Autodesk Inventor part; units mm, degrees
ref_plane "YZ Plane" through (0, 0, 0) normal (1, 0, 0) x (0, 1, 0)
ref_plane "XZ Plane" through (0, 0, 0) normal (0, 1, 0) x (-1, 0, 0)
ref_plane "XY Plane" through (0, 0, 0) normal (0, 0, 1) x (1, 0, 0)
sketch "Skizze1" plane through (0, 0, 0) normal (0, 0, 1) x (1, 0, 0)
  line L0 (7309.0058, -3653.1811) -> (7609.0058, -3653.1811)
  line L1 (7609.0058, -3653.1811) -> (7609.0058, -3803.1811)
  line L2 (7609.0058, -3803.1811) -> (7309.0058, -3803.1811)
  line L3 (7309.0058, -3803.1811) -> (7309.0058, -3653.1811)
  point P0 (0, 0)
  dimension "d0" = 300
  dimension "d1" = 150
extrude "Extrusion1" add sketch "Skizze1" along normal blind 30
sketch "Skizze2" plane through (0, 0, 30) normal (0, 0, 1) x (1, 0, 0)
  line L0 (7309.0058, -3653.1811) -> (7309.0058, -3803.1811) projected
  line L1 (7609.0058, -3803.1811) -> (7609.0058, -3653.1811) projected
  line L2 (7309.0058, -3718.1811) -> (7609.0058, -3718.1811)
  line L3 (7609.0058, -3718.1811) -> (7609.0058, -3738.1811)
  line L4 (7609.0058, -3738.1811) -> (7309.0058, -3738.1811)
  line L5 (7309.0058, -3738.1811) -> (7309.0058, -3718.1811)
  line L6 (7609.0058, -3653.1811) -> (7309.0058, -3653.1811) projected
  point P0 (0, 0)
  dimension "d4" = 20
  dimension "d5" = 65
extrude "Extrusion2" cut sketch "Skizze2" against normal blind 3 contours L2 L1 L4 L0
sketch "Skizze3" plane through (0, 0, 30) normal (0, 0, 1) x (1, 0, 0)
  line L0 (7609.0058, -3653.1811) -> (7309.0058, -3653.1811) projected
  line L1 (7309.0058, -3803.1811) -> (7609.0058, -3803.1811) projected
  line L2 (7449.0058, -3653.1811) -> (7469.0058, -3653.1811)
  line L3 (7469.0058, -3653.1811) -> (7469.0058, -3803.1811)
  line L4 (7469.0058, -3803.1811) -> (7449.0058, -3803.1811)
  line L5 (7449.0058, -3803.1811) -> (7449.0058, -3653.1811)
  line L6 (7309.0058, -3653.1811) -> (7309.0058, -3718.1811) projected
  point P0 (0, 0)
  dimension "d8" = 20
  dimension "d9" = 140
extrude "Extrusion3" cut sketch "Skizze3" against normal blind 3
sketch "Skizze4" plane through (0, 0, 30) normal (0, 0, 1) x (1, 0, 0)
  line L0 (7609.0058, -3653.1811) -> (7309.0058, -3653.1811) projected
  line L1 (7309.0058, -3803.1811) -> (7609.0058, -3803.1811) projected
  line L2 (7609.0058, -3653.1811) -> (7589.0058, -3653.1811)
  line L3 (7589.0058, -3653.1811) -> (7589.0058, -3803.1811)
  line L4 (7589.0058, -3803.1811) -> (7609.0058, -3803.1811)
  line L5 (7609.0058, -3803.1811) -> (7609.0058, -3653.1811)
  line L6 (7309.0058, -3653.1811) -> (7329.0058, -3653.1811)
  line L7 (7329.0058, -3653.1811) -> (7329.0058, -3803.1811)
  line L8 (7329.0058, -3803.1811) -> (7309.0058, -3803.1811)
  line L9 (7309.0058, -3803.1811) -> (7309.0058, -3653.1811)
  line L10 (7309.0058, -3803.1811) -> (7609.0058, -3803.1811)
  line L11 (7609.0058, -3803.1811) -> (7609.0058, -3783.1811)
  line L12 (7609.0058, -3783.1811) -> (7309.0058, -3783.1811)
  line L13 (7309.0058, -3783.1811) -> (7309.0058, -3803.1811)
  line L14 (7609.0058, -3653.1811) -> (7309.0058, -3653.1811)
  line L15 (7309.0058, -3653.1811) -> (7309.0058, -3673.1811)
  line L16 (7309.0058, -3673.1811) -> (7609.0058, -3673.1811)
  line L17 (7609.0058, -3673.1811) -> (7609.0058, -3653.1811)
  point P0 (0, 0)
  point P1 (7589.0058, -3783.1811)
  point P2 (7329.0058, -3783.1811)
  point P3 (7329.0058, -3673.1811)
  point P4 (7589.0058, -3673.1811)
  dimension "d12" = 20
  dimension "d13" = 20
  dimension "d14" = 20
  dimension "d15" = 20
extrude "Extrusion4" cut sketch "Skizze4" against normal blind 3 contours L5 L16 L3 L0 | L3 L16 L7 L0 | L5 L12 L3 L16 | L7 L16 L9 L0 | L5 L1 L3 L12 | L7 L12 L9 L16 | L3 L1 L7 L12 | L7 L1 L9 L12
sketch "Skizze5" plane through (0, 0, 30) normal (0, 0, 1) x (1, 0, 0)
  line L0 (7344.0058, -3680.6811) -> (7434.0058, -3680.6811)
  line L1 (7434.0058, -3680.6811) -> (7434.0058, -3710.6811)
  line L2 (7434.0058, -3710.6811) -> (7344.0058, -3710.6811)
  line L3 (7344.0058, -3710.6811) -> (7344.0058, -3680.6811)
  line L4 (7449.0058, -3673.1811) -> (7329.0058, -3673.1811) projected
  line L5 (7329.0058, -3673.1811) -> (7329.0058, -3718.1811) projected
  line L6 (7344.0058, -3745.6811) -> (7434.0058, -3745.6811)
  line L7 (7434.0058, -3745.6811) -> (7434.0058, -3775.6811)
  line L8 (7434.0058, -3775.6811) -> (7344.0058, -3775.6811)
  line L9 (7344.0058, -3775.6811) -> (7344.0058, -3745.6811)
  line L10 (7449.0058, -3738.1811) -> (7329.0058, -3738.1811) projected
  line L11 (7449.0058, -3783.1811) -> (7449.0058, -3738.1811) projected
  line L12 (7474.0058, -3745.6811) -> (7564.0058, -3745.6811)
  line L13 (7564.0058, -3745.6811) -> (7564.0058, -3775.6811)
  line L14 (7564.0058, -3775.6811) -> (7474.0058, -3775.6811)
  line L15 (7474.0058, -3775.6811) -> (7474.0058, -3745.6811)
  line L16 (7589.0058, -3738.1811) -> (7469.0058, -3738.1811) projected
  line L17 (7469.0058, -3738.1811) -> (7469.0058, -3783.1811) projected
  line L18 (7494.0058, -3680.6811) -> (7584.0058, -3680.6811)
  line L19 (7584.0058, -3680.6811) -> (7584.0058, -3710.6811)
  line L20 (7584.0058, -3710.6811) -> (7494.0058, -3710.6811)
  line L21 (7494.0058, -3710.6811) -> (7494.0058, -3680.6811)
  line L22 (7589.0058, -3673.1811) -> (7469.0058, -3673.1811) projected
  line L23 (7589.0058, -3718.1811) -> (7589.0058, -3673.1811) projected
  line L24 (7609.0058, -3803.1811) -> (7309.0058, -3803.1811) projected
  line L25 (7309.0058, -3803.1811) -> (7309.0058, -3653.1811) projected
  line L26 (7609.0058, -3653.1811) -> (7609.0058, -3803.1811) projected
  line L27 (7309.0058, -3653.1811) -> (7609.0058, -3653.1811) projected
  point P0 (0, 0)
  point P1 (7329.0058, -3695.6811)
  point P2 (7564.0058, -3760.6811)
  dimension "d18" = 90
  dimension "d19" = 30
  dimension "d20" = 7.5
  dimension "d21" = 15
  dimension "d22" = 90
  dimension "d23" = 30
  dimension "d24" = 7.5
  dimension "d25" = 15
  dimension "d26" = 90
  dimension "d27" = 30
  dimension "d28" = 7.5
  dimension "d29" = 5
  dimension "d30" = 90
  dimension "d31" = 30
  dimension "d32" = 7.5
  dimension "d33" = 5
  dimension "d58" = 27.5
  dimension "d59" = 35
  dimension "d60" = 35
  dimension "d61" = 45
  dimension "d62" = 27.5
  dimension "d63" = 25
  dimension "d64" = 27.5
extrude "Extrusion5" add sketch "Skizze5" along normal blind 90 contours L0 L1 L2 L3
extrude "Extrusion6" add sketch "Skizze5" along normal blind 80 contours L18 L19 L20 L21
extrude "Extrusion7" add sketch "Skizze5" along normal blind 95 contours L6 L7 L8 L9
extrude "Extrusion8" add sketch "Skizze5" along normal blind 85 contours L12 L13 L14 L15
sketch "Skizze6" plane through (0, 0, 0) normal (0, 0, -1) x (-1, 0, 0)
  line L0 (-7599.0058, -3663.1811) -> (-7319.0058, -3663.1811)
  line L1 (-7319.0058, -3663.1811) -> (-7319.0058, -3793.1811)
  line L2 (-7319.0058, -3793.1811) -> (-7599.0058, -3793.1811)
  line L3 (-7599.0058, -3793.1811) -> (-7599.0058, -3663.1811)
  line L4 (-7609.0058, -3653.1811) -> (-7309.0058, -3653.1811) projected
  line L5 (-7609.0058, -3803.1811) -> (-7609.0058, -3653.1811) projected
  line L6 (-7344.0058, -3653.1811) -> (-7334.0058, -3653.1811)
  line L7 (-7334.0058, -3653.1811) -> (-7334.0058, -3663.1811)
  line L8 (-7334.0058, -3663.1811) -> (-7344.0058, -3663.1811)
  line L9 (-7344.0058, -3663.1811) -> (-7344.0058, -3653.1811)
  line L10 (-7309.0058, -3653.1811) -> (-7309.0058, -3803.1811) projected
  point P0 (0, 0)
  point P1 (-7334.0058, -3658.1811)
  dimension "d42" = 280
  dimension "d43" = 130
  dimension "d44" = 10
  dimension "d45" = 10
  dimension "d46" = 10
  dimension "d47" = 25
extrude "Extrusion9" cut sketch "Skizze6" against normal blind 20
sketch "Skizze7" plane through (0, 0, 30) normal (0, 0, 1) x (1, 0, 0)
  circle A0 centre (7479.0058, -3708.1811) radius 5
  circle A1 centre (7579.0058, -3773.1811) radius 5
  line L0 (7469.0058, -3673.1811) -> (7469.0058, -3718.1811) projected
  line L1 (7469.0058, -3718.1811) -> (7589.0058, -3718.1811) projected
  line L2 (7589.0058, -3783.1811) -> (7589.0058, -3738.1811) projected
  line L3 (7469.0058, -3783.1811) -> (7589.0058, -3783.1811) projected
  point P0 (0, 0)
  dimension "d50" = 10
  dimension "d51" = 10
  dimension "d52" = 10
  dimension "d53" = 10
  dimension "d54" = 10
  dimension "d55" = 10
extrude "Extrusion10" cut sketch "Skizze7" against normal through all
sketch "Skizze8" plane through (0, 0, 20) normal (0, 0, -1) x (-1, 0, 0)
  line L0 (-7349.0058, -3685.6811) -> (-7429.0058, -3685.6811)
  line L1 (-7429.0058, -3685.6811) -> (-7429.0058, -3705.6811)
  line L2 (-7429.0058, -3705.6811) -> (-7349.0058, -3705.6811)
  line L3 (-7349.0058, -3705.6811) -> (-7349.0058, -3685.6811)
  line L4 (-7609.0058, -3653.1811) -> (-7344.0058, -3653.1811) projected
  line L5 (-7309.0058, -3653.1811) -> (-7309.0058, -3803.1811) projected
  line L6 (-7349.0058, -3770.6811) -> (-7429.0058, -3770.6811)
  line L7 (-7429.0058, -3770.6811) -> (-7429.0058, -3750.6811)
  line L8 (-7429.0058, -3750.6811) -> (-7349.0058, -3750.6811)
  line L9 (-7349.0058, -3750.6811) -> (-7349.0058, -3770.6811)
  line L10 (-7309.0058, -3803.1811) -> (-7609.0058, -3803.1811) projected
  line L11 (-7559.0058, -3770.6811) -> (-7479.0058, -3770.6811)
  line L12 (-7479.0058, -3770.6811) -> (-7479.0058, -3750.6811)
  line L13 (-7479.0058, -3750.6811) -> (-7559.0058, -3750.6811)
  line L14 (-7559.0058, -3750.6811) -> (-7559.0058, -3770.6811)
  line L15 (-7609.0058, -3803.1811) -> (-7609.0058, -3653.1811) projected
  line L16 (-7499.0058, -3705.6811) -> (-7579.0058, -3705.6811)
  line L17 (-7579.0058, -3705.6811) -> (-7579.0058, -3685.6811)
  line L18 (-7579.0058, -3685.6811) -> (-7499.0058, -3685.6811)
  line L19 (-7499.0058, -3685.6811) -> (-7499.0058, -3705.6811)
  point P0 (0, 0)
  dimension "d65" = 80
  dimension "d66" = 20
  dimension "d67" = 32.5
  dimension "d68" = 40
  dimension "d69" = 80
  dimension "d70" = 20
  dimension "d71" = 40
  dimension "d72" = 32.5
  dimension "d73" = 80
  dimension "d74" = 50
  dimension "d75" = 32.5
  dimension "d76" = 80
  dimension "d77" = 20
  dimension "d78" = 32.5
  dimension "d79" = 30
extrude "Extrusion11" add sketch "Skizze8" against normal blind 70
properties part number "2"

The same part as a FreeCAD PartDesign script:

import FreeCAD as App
import Part
import Sketcher
Q = App.Units.Quantity

doc = App.newDocument("Part")
params = doc.addObject("Spreadsheet::Sheet", "Params")
for row, (alias, value) in enumerate([
    ("sketch1_width", "300 mm"),
    ("sketch1_height", "150 mm"),
    ("pad1_length", "30 mm"),
    ("sketch2_height", "20 mm"),
    ("sketch2_width", "300 mm"),
    ("pocket1_length", "3 mm"),
    ("sketch3_width", "20 mm"),
    ("sketch3_height", "150 mm"),
    ("pocket2_length", "3 mm"),
    ("sketch4_width", "300 mm"),
    ("sketch4_height", "150 mm"),
    ("pocket3_length", "3 mm"),
    ("sketch5_width", "90 mm"),
    ("sketch5_height", "30 mm"),
    ("pad2_length", "90 mm"),
    ("sketch6_width", "90 mm"),
    ("sketch6_height", "30 mm"),
    ("pad3_length", "80 mm"),
    ("sketch7_width", "90 mm"),
    ("sketch7_height", "30 mm"),
    ("pad4_length", "95 mm"),
    ("sketch8_width", "90 mm"),
    ("sketch8_height", "30 mm"),
    ("pad5_length", "85 mm"),
    ("sketch9_width", "280 mm"),
    ("sketch9_width2", "10 mm"),
    ("sketch9_height", "130 mm"),
    ("pocket4_length", "20 mm"),
    ("sketch10_diameter", "10 mm"),
    ("sketch11_width", "80 mm"),
    ("sketch11_height", "20 mm"),
    ("pad6_length", "70 mm"),
], start=1):
    params.set(f"A{row}", alias)
    params.set(f"B{row}", "=" + value)
    params.setAlias(f"B{row}", alias)

body = doc.addObject("PartDesign::Body", "Body")

sketch1 = body.newObject("Sketcher::SketchObject", "Sketch")
sketch1.AttachmentSupport = (doc.getObject("XY_Plane"), [""])
sketch1.MapMode = "FlatFace"
sketch1.addGeometry([
    Part.LineSegment(App.Vector(7609.0058, -3653.1811, 0), App.Vector(7309.0058, -3653.1811, 0)),
    Part.LineSegment(App.Vector(7309.0058, -3653.1811, 0), App.Vector(7309.0058, -3803.1811, 0)),
    Part.LineSegment(App.Vector(7309.0058, -3803.1811, 0), App.Vector(7609.0058, -3803.1811, 0)),
    Part.LineSegment(App.Vector(7609.0058, -3803.1811, 0), App.Vector(7609.0058, -3653.1811, 0)),
], False)
sketch1.addConstraint([
    Sketcher.Constraint("Coincident", 0, 2, 1, 1),
    Sketcher.Constraint("Coincident", 1, 2, 2, 1),
    Sketcher.Constraint("Coincident", 2, 2, 3, 1),
    Sketcher.Constraint("Coincident", 3, 2, 0, 1),
    Sketcher.Constraint("Horizontal", 0),
    Sketcher.Constraint("Vertical", 1),
    Sketcher.Constraint("Horizontal", 2),
    Sketcher.Constraint("Vertical", 3),
    Sketcher.Constraint("DistanceX", 0, 2, 0, 1, Q("300 mm")),
    Sketcher.Constraint("DistanceY", 1, 2, 1, 1, Q("150 mm")),
    Sketcher.Constraint("DistanceY", 0, 2, -1, 1, Q("3653.181 mm")),
    Sketcher.Constraint("DistanceX", -1, 1, 0, 2, Q("7309.0058 mm")),
])
sketch1.setExpression("Constraints[8]", "Params.sketch1_width")
sketch1.setExpression("Constraints[9]", "Params.sketch1_height")
pad1 = body.newObject("PartDesign::Pad", "Pad")
pad1.Profile = sketch1
pad1.setExpression("Length", "Params.pad1_length")

sketch2 = body.newObject("Sketcher::SketchObject", "Sketch001")
sketch2.AttachmentSupport = (doc.getObject("XY_Plane"), [""])
sketch2.MapMode = "FlatFace"
sketch2.AttachmentOffset = App.Placement(App.Vector(0, 0, 30), App.Rotation())
sketch2.addGeometry([
    Part.LineSegment(App.Vector(7609.0058, -3718.1811, 0), App.Vector(7309.0058, -3718.1811, 0)),
    Part.LineSegment(App.Vector(7309.0058, -3718.1811, 0), App.Vector(7309.0058, -3738.1811, 0)),
    Part.LineSegment(App.Vector(7309.0058, -3738.1811, 0), App.Vector(7609.0058, -3738.1811, 0)),
    Part.LineSegment(App.Vector(7609.0058, -3738.1811, 0), App.Vector(7609.0058, -3718.1811, 0)),
], False)
sketch2.addConstraint([
    Sketcher.Constraint("Coincident", 0, 2, 1, 1),
    Sketcher.Constraint("Coincident", 1, 2, 2, 1),
    Sketcher.Constraint("Coincident", 2, 2, 3, 1),
    Sketcher.Constraint("Coincident", 3, 2, 0, 1),
    Sketcher.Constraint("Horizontal", 0),
    Sketcher.Constraint("Vertical", 1),
    Sketcher.Constraint("Horizontal", 2),
    Sketcher.Constraint("Vertical", 3),
    Sketcher.Constraint("DistanceY", 1, 2, 1, 1, Q("20 mm")),
    Sketcher.Constraint("DistanceX", 0, 2, 0, 1, Q("300 mm")),
    Sketcher.Constraint("DistanceY", 0, 2, -1, 1, Q("3718.181 mm")),
    Sketcher.Constraint("DistanceX", -1, 1, 0, 2, Q("7309.0058 mm")),
])
sketch2.setExpression("Constraints[8]", "Params.sketch2_height")
sketch2.setExpression("Constraints[9]", "Params.sketch2_width")
pocket1 = body.newObject("PartDesign::Pocket", "Pocket")
pocket1.Profile = sketch2
pocket1.setExpression("Length", "Params.pocket1_length")

sketch3 = body.newObject("Sketcher::SketchObject", "Sketch002")
sketch3.AttachmentSupport = (doc.getObject("XY_Plane"), [""])
sketch3.MapMode = "FlatFace"
sketch3.AttachmentOffset = App.Placement(App.Vector(0, 0, 30), App.Rotation())
sketch3.addGeometry([
    Part.LineSegment(App.Vector(7469.0058, -3803.1811, 0), App.Vector(7469.0058, -3653.1811, 0)),
    Part.LineSegment(App.Vector(7469.0058, -3653.1811, 0), App.Vector(7449.0058, -3653.1811, 0)),
    Part.LineSegment(App.Vector(7449.0058, -3653.1811, 0), App.Vector(7449.0058, -3803.1811, 0)),
    Part.LineSegment(App.Vector(7449.0058, -3803.1811, 0), App.Vector(7469.0058, -3803.1811, 0)),
], False)
sketch3.addConstraint([
    Sketcher.Constraint("Coincident", 0, 2, 1, 1),
    Sketcher.Constraint("Coincident", 1, 2, 2, 1),
    Sketcher.Constraint("Coincident", 2, 2, 3, 1),
    Sketcher.Constraint("Coincident", 3, 2, 0, 1),
    Sketcher.Constraint("Vertical", 0),
    Sketcher.Constraint("Horizontal", 1),
    Sketcher.Constraint("Vertical", 2),
    Sketcher.Constraint("Horizontal", 3),
    Sketcher.Constraint("DistanceX", 1, 2, 1, 1, Q("20 mm")),
    Sketcher.Constraint("DistanceY", 0, 1, 0, 2, Q("150 mm")),
    Sketcher.Constraint("DistanceY", 0, 2, -1, 1, Q("3653.181 mm")),
    Sketcher.Constraint("DistanceX", -1, 1, 0, 2, Q("7469.0058 mm")),
])
sketch3.setExpression("Constraints[8]", "Params.sketch3_width")
sketch3.setExpression("Constraints[9]", "Params.sketch3_height")
pocket2 = body.newObject("PartDesign::Pocket", "Pocket001")
pocket2.Profile = sketch3
pocket2.setExpression("Length", "Params.pocket2_length")

sketch4 = body.newObject("Sketcher::SketchObject", "Sketch003")
sketch4.AttachmentSupport = (doc.getObject("XY_Plane"), [""])
sketch4.MapMode = "FlatFace"
sketch4.AttachmentOffset = App.Placement(App.Vector(0, 0, 30), App.Rotation())
sketch4.addGeometry([
    Part.LineSegment(App.Vector(7609.0058, -3653.1811, 0), App.Vector(7309.0058, -3653.1811, 0)),
    Part.LineSegment(App.Vector(7309.0058, -3653.1811, 0), App.Vector(7309.0058, -3803.1811, 0)),
    Part.LineSegment(App.Vector(7309.0058, -3803.1811, 0), App.Vector(7609.0058, -3803.1811, 0)),
    Part.LineSegment(App.Vector(7609.0058, -3803.1811, 0), App.Vector(7609.0058, -3653.1811, 0)),
    Part.LineSegment(App.Vector(7589.0058, -3673.1811, 0), App.Vector(7589.0058, -3783.1811, 0)),
    Part.LineSegment(App.Vector(7589.0058, -3783.1811, 0), App.Vector(7329.0058, -3783.1811, 0)),
    Part.LineSegment(App.Vector(7329.0058, -3783.1811, 0), App.Vector(7329.0058, -3673.1811, 0)),
    Part.LineSegment(App.Vector(7329.0058, -3673.1811, 0), App.Vector(7589.0058, -3673.1811, 0)),
], False)
sketch4.addConstraint([
    Sketcher.Constraint("Coincident", 0, 2, 1, 1),
    Sketcher.Constraint("Coincident", 1, 2, 2, 1),
    Sketcher.Constraint("Coincident", 2, 2, 3, 1),
    Sketcher.Constraint("Coincident", 3, 2, 0, 1),
    Sketcher.Constraint("Coincident", 4, 2, 5, 1),
    Sketcher.Constraint("Coincident", 5, 2, 6, 1),
    Sketcher.Constraint("Coincident", 6, 2, 7, 1),
    Sketcher.Constraint("Coincident", 7, 2, 4, 1),
    Sketcher.Constraint("Horizontal", 0),
    Sketcher.Constraint("Vertical", 1),
    Sketcher.Constraint("Horizontal", 2),
    Sketcher.Constraint("Vertical", 3),
    Sketcher.Constraint("Vertical", 4),
    Sketcher.Constraint("Horizontal", 5),
    Sketcher.Constraint("Vertical", 6),
    Sketcher.Constraint("Horizontal", 7),
    Sketcher.Constraint("DistanceX", 4, 2, 2, 2, Q("20 mm")),
    Sketcher.Constraint("DistanceY", 2, 2, 4, 2, Q("20 mm")),
    Sketcher.Constraint("DistanceX", 1, 2, 5, 2, Q("20 mm")),
    Sketcher.Constraint("DistanceY", 6, 2, 0, 2, Q("20 mm")),
    Sketcher.Constraint("DistanceX", 0, 2, 0, 1, Q("300 mm")),
    Sketcher.Constraint("DistanceY", 1, 2, 1, 1, Q("150 mm")),
    Sketcher.Constraint("DistanceY", 0, 2, -1, 1, Q("3653.181 mm")),
    Sketcher.Constraint("DistanceX", -1, 1, 0, 2, Q("7309.0058 mm")),
])
sketch4.setExpression("Constraints[20]", "Params.sketch4_width")
sketch4.setExpression("Constraints[21]", "Params.sketch4_height")
pocket3 = body.newObject("PartDesign::Pocket", "Pocket002")
pocket3.Profile = sketch4
pocket3.setExpression("Length", "Params.pocket3_length")

sketch5 = body.newObject("Sketcher::SketchObject", "Sketch004")
sketch5.AttachmentSupport = (doc.getObject("XY_Plane"), [""])
sketch5.MapMode = "FlatFace"
sketch5.AttachmentOffset = App.Placement(App.Vector(0, 0, 30), App.Rotation())
sketch5.addGeometry([
    Part.LineSegment(App.Vector(7434.0058, -3680.6811, 0), App.Vector(7344.0058, -3680.6811, 0)),
    Part.LineSegment(App.Vector(7344.0058, -3680.6811, 0), App.Vector(7344.0058, -3710.6811, 0)),
    Part.LineSegment(App.Vector(7344.0058, -3710.6811, 0), App.Vector(7434.0058, -3710.6811, 0)),
    Part.LineSegment(App.Vector(7434.0058, -3710.6811, 0), App.Vector(7434.0058, -3680.6811, 0)),
], False)
sketch5.addConstraint([
    Sketcher.Constraint("Coincident", 0, 2, 1, 1),
    Sketcher.Constraint("Coincident", 1, 2, 2, 1),
    Sketcher.Constraint("Coincident", 2, 2, 3, 1),
    Sketcher.Constraint("Coincident", 3, 2, 0, 1),
    Sketcher.Constraint("Horizontal", 0),
    Sketcher.Constraint("Vertical", 1),
    Sketcher.Constraint("Horizontal", 2),
    Sketcher.Constraint("Vertical", 3),
    Sketcher.Constraint("DistanceX", 0, 2, 0, 1, Q("90 mm")),
    Sketcher.Constraint("DistanceY", 1, 2, 1, 1, Q("30 mm")),
    Sketcher.Constraint("DistanceY", 0, 2, -1, 1, Q("3680.681 mm")),
    Sketcher.Constraint("DistanceX", -1, 1, 0, 2, Q("7344.0058 mm")),
])
sketch5.setExpression("Constraints[8]", "Params.sketch5_width")
sketch5.setExpression("Constraints[9]", "Params.sketch5_height")
pad2 = body.newObject("PartDesign::Pad", "Pad001")
pad2.Profile = sketch5
pad2.setExpression("Length", "Params.pad2_length")

sketch6 = body.newObject("Sketcher::SketchObject", "Sketch005")
sketch6.AttachmentSupport = (doc.getObject("XY_Plane"), [""])
sketch6.MapMode = "FlatFace"
sketch6.AttachmentOffset = App.Placement(App.Vector(0, 0, 30), App.Rotation())
sketch6.addGeometry([
    Part.LineSegment(App.Vector(7584.0058, -3680.6811, 0), App.Vector(7494.0058, -3680.6811, 0)),
    Part.LineSegment(App.Vector(7494.0058, -3680.6811, 0), App.Vector(7494.0058, -3710.6811, 0)),
    Part.LineSegment(App.Vector(7494.0058, -3710.6811, 0), App.Vector(7584.0058, -3710.6811, 0)),
    Part.LineSegment(App.Vector(7584.0058, -3710.6811, 0), App.Vector(7584.0058, -3680.6811, 0)),
], False)
sketch6.addConstraint([
    Sketcher.Constraint("Coincident", 0, 2, 1, 1),
    Sketcher.Constraint("Coincident", 1, 2, 2, 1),
    Sketcher.Constraint("Coincident", 2, 2, 3, 1),
    Sketcher.Constraint("Coincident", 3, 2, 0, 1),
    Sketcher.Constraint("Horizontal", 0),
    Sketcher.Constraint("Vertical", 1),
    Sketcher.Constraint("Horizontal", 2),
    Sketcher.Constraint("Vertical", 3),
    Sketcher.Constraint("DistanceX", 0, 2, 0, 1, Q("90 mm")),
    Sketcher.Constraint("DistanceY", 1, 2, 1, 1, Q("30 mm")),
    Sketcher.Constraint("DistanceY", 0, 2, -1, 1, Q("3680.681 mm")),
    Sketcher.Constraint("DistanceX", -1, 1, 0, 2, Q("7494.0058 mm")),
])
sketch6.setExpression("Constraints[8]", "Params.sketch6_width")
sketch6.setExpression("Constraints[9]", "Params.sketch6_height")
pad3 = body.newObject("PartDesign::Pad", "Pad002")
pad3.Profile = sketch6
pad3.setExpression("Length", "Params.pad3_length")

sketch7 = body.newObject("Sketcher::SketchObject", "Sketch006")
sketch7.AttachmentSupport = (doc.getObject("XY_Plane"), [""])
sketch7.MapMode = "FlatFace"
sketch7.AttachmentOffset = App.Placement(App.Vector(0, 0, 30), App.Rotation())
sketch7.addGeometry([
    Part.LineSegment(App.Vector(7434.0058, -3745.6811, 0), App.Vector(7344.0058, -3745.6811, 0)),
    Part.LineSegment(App.Vector(7344.0058, -3745.6811, 0), App.Vector(7344.0058, -3775.6811, 0)),
    Part.LineSegment(App.Vector(7344.0058, -3775.6811, 0), App.Vector(7434.0058, -3775.6811, 0)),
    Part.LineSegment(App.Vector(7434.0058, -3775.6811, 0), App.Vector(7434.0058, -3745.6811, 0)),
], False)
sketch7.addConstraint([
    Sketcher.Constraint("Coincident", 0, 2, 1, 1),
    Sketcher.Constraint("Coincident", 1, 2, 2, 1),
    Sketcher.Constraint("Coincident", 2, 2, 3, 1),
    Sketcher.Constraint("Coincident", 3, 2, 0, 1),
    Sketcher.Constraint("Horizontal", 0),
    Sketcher.Constraint("Vertical", 1),
    Sketcher.Constraint("Horizontal", 2),
    Sketcher.Constraint("Vertical", 3),
    Sketcher.Constraint("DistanceX", 0, 2, 0, 1, Q("90 mm")),
    Sketcher.Constraint("DistanceY", 1, 2, 1, 1, Q("30 mm")),
    Sketcher.Constraint("DistanceY", 0, 2, -1, 1, Q("3745.681 mm")),
    Sketcher.Constraint("DistanceX", -1, 1, 0, 2, Q("7344.0058 mm")),
])
sketch7.setExpression("Constraints[8]", "Params.sketch7_width")
sketch7.setExpression("Constraints[9]", "Params.sketch7_height")
pad4 = body.newObject("PartDesign::Pad", "Pad003")
pad4.Profile = sketch7
pad4.setExpression("Length", "Params.pad4_length")

sketch8 = body.newObject("Sketcher::SketchObject", "Sketch007")
sketch8.AttachmentSupport = (doc.getObject("XY_Plane"), [""])
sketch8.MapMode = "FlatFace"
sketch8.AttachmentOffset = App.Placement(App.Vector(0, 0, 30), App.Rotation())
sketch8.addGeometry([
    Part.LineSegment(App.Vector(7564.0058, -3745.6811, 0), App.Vector(7474.0058, -3745.6811, 0)),
    Part.LineSegment(App.Vector(7474.0058, -3745.6811, 0), App.Vector(7474.0058, -3775.6811, 0)),
    Part.LineSegment(App.Vector(7474.0058, -3775.6811, 0), App.Vector(7564.0058, -3775.6811, 0)),
    Part.LineSegment(App.Vector(7564.0058, -3775.6811, 0), App.Vector(7564.0058, -3745.6811, 0)),
], False)
sketch8.addConstraint([
    Sketcher.Constraint("Coincident", 0, 2, 1, 1),
    Sketcher.Constraint("Coincident", 1, 2, 2, 1),
    Sketcher.Constraint("Coincident", 2, 2, 3, 1),
    Sketcher.Constraint("Coincident", 3, 2, 0, 1),
    Sketcher.Constraint("Horizontal", 0),
    Sketcher.Constraint("Vertical", 1),
    Sketcher.Constraint("Horizontal", 2),
    Sketcher.Constraint("Vertical", 3),
    Sketcher.Constraint("DistanceX", 0, 2, 0, 1, Q("90 mm")),
    Sketcher.Constraint("DistanceY", 1, 2, 1, 1, Q("30 mm")),
    Sketcher.Constraint("DistanceY", 0, 2, -1, 1, Q("3745.681 mm")),
    Sketcher.Constraint("DistanceX", -1, 1, 0, 2, Q("7474.0058 mm")),
])
sketch8.setExpression("Constraints[8]", "Params.sketch8_width")
sketch8.setExpression("Constraints[9]", "Params.sketch8_height")
pad5 = body.newObject("PartDesign::Pad", "Pad004")
pad5.Profile = sketch8
pad5.setExpression("Length", "Params.pad5_length")

sketch9 = body.newObject("Sketcher::SketchObject", "Sketch008")
sketch9.AttachmentSupport = (doc.getObject("XY_Plane"), [""])
sketch9.MapMode = "FlatFace"
sketch9.addGeometry([
    Part.LineSegment(App.Vector(7344.0058, -3663.1811, 0), App.Vector(7599.0058, -3663.1811, 0)),
    Part.LineSegment(App.Vector(7599.0058, -3663.1811, 0), App.Vector(7599.0058, -3793.1811, 0)),
    Part.LineSegment(App.Vector(7599.0058, -3793.1811, 0), App.Vector(7319.0058, -3793.1811, 0)),
    Part.LineSegment(App.Vector(7319.0058, -3793.1811, 0), App.Vector(7319.0058, -3663.1811, 0)),
    Part.LineSegment(App.Vector(7319.0058, -3663.1811, 0), App.Vector(7334.0058, -3663.1811, 0)),
    Part.LineSegment(App.Vector(7334.0058, -3663.1811, 0), App.Vector(7334.0058, -3653.1811, 0)),
    Part.LineSegment(App.Vector(7334.0058, -3653.1811, 0), App.Vector(7344.0058, -3653.1811, 0)),
    Part.LineSegment(App.Vector(7344.0058, -3653.1811, 0), App.Vector(7344.0058, -3663.1811, 0)),
], False)
sketch9.addConstraint([
    Sketcher.Constraint("Coincident", 0, 2, 1, 1),
    Sketcher.Constraint("Coincident", 1, 2, 2, 1),
    Sketcher.Constraint("Coincident", 2, 2, 3, 1),
    Sketcher.Constraint("Coincident", 3, 2, 4, 1),
    Sketcher.Constraint("Coincident", 4, 2, 5, 1),
    Sketcher.Constraint("Coincident", 5, 2, 6, 1),
    Sketcher.Constraint("Coincident", 6, 2, 7, 1),
    Sketcher.Constraint("Coincident", 7, 2, 0, 1),
    Sketcher.Constraint("Horizontal", 0),
    Sketcher.Constraint("Vertical", 1),
    Sketcher.Constraint("Horizontal", 2),
    Sketcher.Constraint("Vertical", 3),
    Sketcher.Constraint("Horizontal", 4),
    Sketcher.Constraint("Vertical", 5),
    Sketcher.Constraint("Horizontal", 6),
    Sketcher.Constraint("Vertical", 7),
    Sketcher.Constraint("Horizontal", 0, 2, 3, 2),
    Sketcher.Constraint("Equal", 6, 5),
    Sketcher.Constraint("DistanceX", 2, 2, 2, 1, Q("280 mm")),
    Sketcher.Constraint("DistanceX", 6, 1, 6, 2, Q("10 mm")),
    Sketcher.Constraint("DistanceY", 1, 2, 1, 1, Q("130 mm")),
    Sketcher.Constraint("DistanceX", 3, 2, 6, 2, Q("25 mm")),
    Sketcher.Constraint("DistanceY", 0, 2, -1, 1, Q("3663.181 mm")),
    Sketcher.Constraint("DistanceX", -1, 1, 0, 2, Q("7599.0058 mm")),
])
sketch9.setExpression("Constraints[18]", "Params.sketch9_width")
sketch9.setExpression("Constraints[19]", "Params.sketch9_width2")
sketch9.setExpression("Constraints[20]", "Params.sketch9_height")
pocket4 = body.newObject("PartDesign::Pocket", "Pocket003")
pocket4.Profile = sketch9
pocket4.setExpression("Length", "Params.pocket4_length")
pocket4.Reversed = True

sketch10 = body.newObject("Sketcher::SketchObject", "Sketch009")
sketch10.AttachmentSupport = (doc.getObject("XY_Plane"), [""])
sketch10.MapMode = "FlatFace"
sketch10.AttachmentOffset = App.Placement(App.Vector(0, 0, 30), App.Rotation())
sketch10.addGeometry([
    Part.Circle(App.Vector(7479.0058, -3708.1811, 0), App.Vector(0, 0, 1), 5),
    Part.Circle(App.Vector(7579.0058, -3773.1811, 0), App.Vector(0, 0, 1), 5),
], False)
sketch10.addConstraint([
    Sketcher.Constraint("Equal", 0, 1),
    Sketcher.Constraint("Diameter", 0, Q("10 mm")),
    Sketcher.Constraint("DistanceX", 0, 3, 1, 3, Q("100 mm")),
    Sketcher.Constraint("DistanceY", 1, 3, 0, 3, Q("65 mm")),
    Sketcher.Constraint("DistanceY", 0, 3, -1, 1, Q("3708.181 mm")),
    Sketcher.Constraint("DistanceX", -1, 1, 0, 3, Q("7479.0058 mm")),
])
sketch10.setExpression("Constraints[1]", "Params.sketch10_diameter")
pocket5 = body.newObject("PartDesign::Pocket", "Pocket004")
pocket5.Profile = sketch10
pocket5.Type = "ThroughAll"

sketch11 = body.newObject("Sketcher::SketchObject", "Sketch010")
sketch11.AttachmentSupport = (doc.getObject("XY_Plane"), [""])
sketch11.MapMode = "FlatFace"
sketch11.AttachmentOffset = App.Placement(App.Vector(0, 0, 20), App.Rotation())
sketch11.addGeometry([
    Part.LineSegment(App.Vector(7349.0058, -3705.6811, 0), App.Vector(7349.0058, -3685.6811, 0)),
    Part.LineSegment(App.Vector(7349.0058, -3685.6811, 0), App.Vector(7429.0058, -3685.6811, 0)),
    Part.LineSegment(App.Vector(7429.0058, -3685.6811, 0), App.Vector(7429.0058, -3705.6811, 0)),
    Part.LineSegment(App.Vector(7429.0058, -3705.6811, 0), App.Vector(7349.0058, -3705.6811, 0)),
    Part.LineSegment(App.Vector(7429.0058, -3770.6811, 0), App.Vector(7349.0058, -3770.6811, 0)),
    Part.LineSegment(App.Vector(7349.0058, -3770.6811, 0), App.Vector(7349.0058, -3750.6811, 0)),
    Part.LineSegment(App.Vector(7349.0058, -3750.6811, 0), App.Vector(7429.0058, -3750.6811, 0)),
    Part.LineSegment(App.Vector(7429.0058, -3750.6811, 0), App.Vector(7429.0058, -3770.6811, 0)),
    Part.LineSegment(App.Vector(7559.0058, -3750.6811, 0), App.Vector(7559.0058, -3770.6811, 0)),
    Part.LineSegment(App.Vector(7559.0058, -3770.6811, 0), App.Vector(7479.0058, -3770.6811, 0)),
    Part.LineSegment(App.Vector(7479.0058, -3770.6811, 0), App.Vector(7479.0058, -3750.6811, 0)),
    Part.LineSegment(App.Vector(7479.0058, -3750.6811, 0), App.Vector(7559.0058, -3750.6811, 0)),
    Part.LineSegment(App.Vector(7579.0058, -3705.6811, 0), App.Vector(7499.0058, -3705.6811, 0)),
    Part.LineSegment(App.Vector(7499.0058, -3705.6811, 0), App.Vector(7499.0058, -3685.6811, 0)),
    Part.LineSegment(App.Vector(7499.0058, -3685.6811, 0), App.Vector(7579.0058, -3685.6811, 0)),
    Part.LineSegment(App.Vector(7579.0058, -3685.6811, 0), App.Vector(7579.0058, -3705.6811, 0)),
], False)
sketch11.addConstraint([
    Sketcher.Constraint("Coincident", 0, 2, 1, 1),
    Sketcher.Constraint("Coincident", 1, 2, 2, 1),
    Sketcher.Constraint("Coincident", 2, 2, 3, 1),
    Sketcher.Constraint("Coincident", 3, 2, 0, 1),
    Sketcher.Constraint("Coincident", 4, 2, 5, 1),
    Sketcher.Constraint("Coincident", 5, 2, 6, 1),
    Sketcher.Constraint("Coincident", 6, 2, 7, 1),
    Sketcher.Constraint("Coincident", 7, 2, 4, 1),
    Sketcher.Constraint("Coincident", 8, 2, 9, 1),
    Sketcher.Constraint("Coincident", 9, 2, 10, 1),
    Sketcher.Constraint("Coincident", 10, 2, 11, 1),
    Sketcher.Constraint("Coincident", 11, 2, 8, 1),
    Sketcher.Constraint("Coincident", 12, 2, 13, 1),
    Sketcher.Constraint("Coincident", 13, 2, 14, 1),
    Sketcher.Constraint("Coincident", 14, 2, 15, 1),
    Sketcher.Constraint("Coincident", 15, 2, 12, 1),
    Sketcher.Constraint("Vertical", 0),
    Sketcher.Constraint("Horizontal", 1),
    Sketcher.Constraint("Vertical", 2),
    Sketcher.Constraint("Horizontal", 3),
    Sketcher.Constraint("Horizontal", 4),
    Sketcher.Constraint("Vertical", 5),
    Sketcher.Constraint("Horizontal", 6),
    Sketcher.Constraint("Vertical", 7),
    Sketcher.Constraint("Vertical", 8),
    Sketcher.Constraint("Horizontal", 9),
    Sketcher.Constraint("Vertical", 10),
    Sketcher.Constraint("Horizontal", 11),
    Sketcher.Constraint("Horizontal", 12),
    Sketcher.Constraint("Vertical", 13),
    Sketcher.Constraint("Horizontal", 14),
    Sketcher.Constraint("Vertical", 15),
    Sketcher.Constraint("Horizontal", 7, 2, 8, 2),
    Sketcher.Constraint("Horizontal", 6, 2, 10, 2),
    Sketcher.Constraint("Horizontal", 3, 2, 12, 2),
    Sketcher.Constraint("Horizontal", 1, 2, 13, 2),
    Sketcher.Constraint("Vertical", 3, 2, 4, 2),
    Sketcher.Constraint("Vertical", 2, 2, 6, 2),
    Sketcher.Constraint("Equal", 6, 9),
    Sketcher.Constraint("Equal", 11, 12),
    Sketcher.Constraint("Equal", 2, 5),
    Sketcher.Constraint("DistanceX", 1, 1, 1, 2, Q("80 mm")),
    Sketcher.Constraint("DistanceY", 0, 1, 0, 2, Q("20 mm")),
    Sketcher.Constraint("DistanceX", 7, 2, 9, 2, Q("50 mm")),
    Sketcher.Constraint("DistanceX", 10, 2, 12, 2, Q("20 mm")),
    Sketcher.Constraint("DistanceY", 4, 2, 3, 2, Q("65 mm")),
    Sketcher.Constraint("DistanceY", 0, 2, -1, 1, Q("3685.681 mm")),
    Sketcher.Constraint("DistanceX", -1, 1, 0, 2, Q("7349.0058 mm")),
])
sketch11.setExpression("Constraints[41]", "Params.sketch11_width")
sketch11.setExpression("Constraints[42]", "Params.sketch11_height")
pad6 = body.newObject("PartDesign::Pad", "Pad005")
pad6.Profile = sketch11
pad6.setExpression("Length", "Params.pad6_length")

doc.recompute()
